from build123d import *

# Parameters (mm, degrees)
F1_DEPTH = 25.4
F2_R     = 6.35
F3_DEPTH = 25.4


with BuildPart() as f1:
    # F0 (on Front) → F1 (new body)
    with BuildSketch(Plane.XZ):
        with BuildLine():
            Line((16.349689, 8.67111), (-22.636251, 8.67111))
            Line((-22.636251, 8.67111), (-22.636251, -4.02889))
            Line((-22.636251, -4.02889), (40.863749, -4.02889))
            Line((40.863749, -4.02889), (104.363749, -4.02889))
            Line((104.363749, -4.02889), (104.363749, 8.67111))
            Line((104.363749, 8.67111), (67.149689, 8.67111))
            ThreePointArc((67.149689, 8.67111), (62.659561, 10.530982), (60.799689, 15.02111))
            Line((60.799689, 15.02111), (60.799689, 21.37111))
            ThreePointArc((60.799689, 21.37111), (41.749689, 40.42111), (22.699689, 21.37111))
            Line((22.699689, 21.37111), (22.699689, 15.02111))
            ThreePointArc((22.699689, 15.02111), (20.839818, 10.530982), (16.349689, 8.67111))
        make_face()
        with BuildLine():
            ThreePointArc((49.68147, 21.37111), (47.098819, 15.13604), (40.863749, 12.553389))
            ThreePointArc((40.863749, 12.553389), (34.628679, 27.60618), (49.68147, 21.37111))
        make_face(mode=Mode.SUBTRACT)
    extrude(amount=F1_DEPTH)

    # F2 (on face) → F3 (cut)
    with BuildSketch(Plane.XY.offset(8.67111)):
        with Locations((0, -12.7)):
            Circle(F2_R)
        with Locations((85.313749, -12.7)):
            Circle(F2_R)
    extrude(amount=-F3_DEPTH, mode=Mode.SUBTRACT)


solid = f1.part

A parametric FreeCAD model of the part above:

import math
import FreeCAD as App
import Part
import Sketcher
from FreeCAD import Vector
Q = App.Units.Quantity

doc = App.newDocument("Part")
body = doc.addObject("PartDesign::Body", "Body")

sketch1 = body.newObject("Sketcher::SketchObject", "Sketch")
sketch1.AttachmentSupport = (doc.getObject("XZ_Plane"), [""])
sketch1.MapMode = "FlatFace"
sketch1.addGeometry(Part.LineSegment(Vector(16.349689, 8.67111, 0), Vector(-22.636251, 8.67111, 0)), False)
sketch1.addGeometry(Part.LineSegment(Vector(-22.636251, 8.67111, 0), Vector(-22.636251, -4.02889, 0)), False)
sketch1.addGeometry(Part.LineSegment(Vector(-22.636251, -4.02889, 0), Vector(104.363749, -4.02889, 0)), False)
sketch1.addGeometry(Part.LineSegment(Vector(104.363749, -4.02889, 0), Vector(104.363749, 8.67111, 0)), False)
sketch1.addGeometry(Part.LineSegment(Vector(104.363749, 8.67111, 0), Vector(67.149689, 8.67111, 0)), False)
sketch1.addGeometry(Part.ArcOfCircle(Part.Circle(Vector(67.149689, 15.02111, 0), Vector(0, 0, 1), 6.35), math.radians(-179.999998), math.radians(-90.000002)), False)
sketch1.addGeometry(Part.LineSegment(Vector(60.799689, 15.02111, 0), Vector(60.799689, 21.37111, 0)), False)
sketch1.addGeometry(Part.ArcOfCircle(Part.Circle(Vector(41.749689, 21.37111, 0), Vector(0, 0, 1), 19.05), math.radians(0), math.radians(180)), False)
sketch1.addGeometry(Part.LineSegment(Vector(22.699689, 21.37111, 0), Vector(22.699689, 15.02111, 0)), False)
sketch1.addGeometry(Part.ArcOfCircle(Part.Circle(Vector(16.349691, 15.021109, 0), Vector(0, 0, 1), 6.349998), math.radians(-90.000014), math.radians(0.000014)), False)
sketch1.addGeometry(Part.ArcOfCircle(Part.Circle(Vector(40.863749, 21.37111, 0), Vector(0, 0, 1), 8.817721), math.radians(0.000001), math.radians(269.999999)), False)
sketch1.addGeometry(Part.ArcOfCircle(Part.Circle(Vector(40.863748, 21.371111, 0), Vector(0, 0, 1), 8.817722), math.radians(-89.999993), math.radians(-0.000007)), False)
sketch1.addConstraint(Sketcher.Constraint("Coincident", 0, 2, 1, 1))
sketch1.addConstraint(Sketcher.Constraint("Coincident", 1, 2, 2, 1))
sketch1.addConstraint(Sketcher.Constraint("Coincident", 2, 2, 3, 1))
sketch1.addConstraint(Sketcher.Constraint("Coincident", 3, 2, 4, 1))
sketch1.addConstraint(Sketcher.Constraint("Tangent", 4, 2, 5, 2))
sketch1.addConstraint(Sketcher.Constraint("Tangent", 5, 1, 6, 1))
sketch1.addConstraint(Sketcher.Constraint("Tangent", 6, 2, 7, 1))
sketch1.addConstraint(Sketcher.Constraint("Tangent", 7, 2, 8, 1))
sketch1.addConstraint(Sketcher.Constraint("Tangent", 8, 2, 9, 2))
sketch1.addConstraint(Sketcher.Constraint("Tangent", 9, 1, 0, 1))
sketch1.addConstraint(Sketcher.Constraint("Tangent", 10, 1, 11, 2))
sketch1.addConstraint(Sketcher.Constraint("Coincident", 11, 1, 10, 2))
sketch1.addConstraint(Sketcher.Constraint("Horizontal", 0))
sketch1.addConstraint(Sketcher.Constraint("Vertical", 1))
sketch1.addConstraint(Sketcher.Constraint("Horizontal", 2))
sketch1.addConstraint(Sketcher.Constraint("Vertical", 3))
sketch1.addConstraint(Sketcher.Constraint("Horizontal", 4))
sketch1.addConstraint(Sketcher.Constraint("Vertical", 6))
sketch1.addConstraint(Sketcher.Constraint("Vertical", 8))
sketch1.addConstraint(Sketcher.Constraint("Equal", 5, 9))
sketch1.addConstraint(Sketcher.Constraint("Horizontal", 5, 3, 9, 3))
sketch1.addConstraint(Sketcher.Constraint("Horizontal", 7, 3, 10, 3))
sketch1.addConstraint(Sketcher.Constraint("Horizontal", 7, 2, 10, 1))
sketch1.addConstraint(Sketcher.Constraint("Vertical", 10, 3, 11, 1))
sketch1.addConstraint(Sketcher.Constraint("DistanceX", 2, 1, 2, 2, Q("5 in")))
sketch1.addConstraint(Sketcher.Constraint("Radius", 5, Q("0.25 in")))
sketch1.addConstraint(Sketcher.Constraint("Radius", 7, Q("0.75 in")))
sketch1.addConstraint(Sketcher.Constraint("DistanceY", 1, 2, 1, 1, Q("0.5 in")))
sketch1.addConstraint(Sketcher.Constraint("DistanceY", 1, 2, 11, 3, Q("1 in")))
sketch1.addConstraint(Sketcher.Constraint("DistanceX", 0, 2, 11, 3, Q("2.5 in")))
sketch1.addConstraint(Sketcher.Constraint("Radius", 10, 8.817721))
sketch1.addConstraint(Sketcher.Constraint("DistanceX", 0, 2, 0, 1, 38.98594))
sketch1.addConstraint(Sketcher.Constraint("DistanceX", -1, 1, 5, 3, 67.149689))
sketch1.addConstraint(Sketcher.Constraint("DistanceY", -1, 1, 5, 3, 15.02111))
pad1 = body.newObject("PartDesign::Pad", "Pad")
pad1.Profile = sketch1
pad1.Length = Q("1 in")

sketch2 = body.newObject("Sketcher::SketchObject", "Sketch001")
sketch2.AttachmentSupport = (doc.getObject("XY_Plane"), [""])
sketch2.MapMode = "FlatFace"
sketch2.AttachmentOffset = App.Placement(Vector(0, 0, 8.67111), App.Rotation())
sketch2.addGeometry(Part.Circle(Vector(0, -12.7, 0), Vector(0, 0, 1), 6.35), False)
sketch2.addGeometry(Part.Circle(Vector(85.313749, -12.7, 0), Vector(0, 0, 1), 6.35), False)
sketch2.addConstraint(Sketcher.Constraint("Equal", 0, 1))
sketch2.addConstraint(Sketcher.Constraint("PointOnObject", 0, 3, -2))
sketch2.addConstraint(Sketcher.Constraint("Horizontal", 0, 3, 1, 3))
sketch2.addConstraint(Sketcher.Constraint("Diameter", 0, Q("0.5 in")))
sketch2.addConstraint(Sketcher.Constraint("DistanceY", 0, 3, -1, 1, Q("0.5 in")))
sketch2.addConstraint(Sketcher.Constraint("DistanceX", -1, 1, 1, 3, 85.313749))
pocket1 = body.newObject("PartDesign::Pocket", "Pocket")
pocket1.Profile = sketch2
pocket1.Length = Q("1 in")

doc.recompute()
